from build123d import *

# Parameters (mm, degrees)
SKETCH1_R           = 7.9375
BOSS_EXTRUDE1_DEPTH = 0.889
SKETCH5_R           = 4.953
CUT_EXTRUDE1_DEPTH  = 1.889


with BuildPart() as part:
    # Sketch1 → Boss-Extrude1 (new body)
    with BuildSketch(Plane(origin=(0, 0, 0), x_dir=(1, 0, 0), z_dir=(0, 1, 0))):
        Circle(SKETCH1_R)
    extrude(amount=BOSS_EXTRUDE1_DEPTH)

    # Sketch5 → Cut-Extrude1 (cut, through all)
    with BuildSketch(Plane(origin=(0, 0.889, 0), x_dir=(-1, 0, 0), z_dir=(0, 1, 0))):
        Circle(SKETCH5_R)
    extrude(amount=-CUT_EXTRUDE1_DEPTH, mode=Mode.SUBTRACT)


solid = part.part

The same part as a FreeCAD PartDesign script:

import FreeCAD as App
import Part
import Sketcher

V = App.Vector
Q = App.Units.Quantity

doc = App.newDocument("Part")
params = doc.addObject("Spreadsheet::Sheet", "Params")
for row, (alias, value) in enumerate([
    ("sketch1_diameter", "0.625 in"),
    ("pad1_length", "0.035 in"),
    ("sketch2_diameter", "0.39 in"),
], start=1):
    params.set(f"A{row}", alias)
    params.set(f"B{row}", "=" + value)
    params.setAlias(f"B{row}", alias)

body = doc.addObject("PartDesign::Body", "Body")

sketch1 = body.newObject("Sketcher::SketchObject", "Sketch")
sketch1.AttachmentSupport = (doc.getObject("XZ_Plane"), [""])
sketch1.MapMode = "FlatFace"
sketch1.addGeometry(Part.Circle(V(0, 0, 0), V(0, 0, 1), 7.9375), False)
sketch1.addConstraint(Sketcher.Constraint("Coincident", 0, 3, -1, 1))
sketch1.addConstraint(Sketcher.Constraint("Diameter", 0, Q("0.625 in")))
sketch1.setExpression("Constraints[1]", "Params.sketch1_diameter")
pad1 = body.newObject("PartDesign::Pad", "Pad")
pad1.Profile = sketch1
pad1.setExpression("Length", "Params.pad1_length")
pad1.Reversed = True

sketch2 = body.newObject("Sketcher::SketchObject", "Sketch001")
sketch2.AttachmentSupport = (doc.getObject("XZ_Plane"), [""])
sketch2.MapMode = "FlatFace"
sketch2.AttachmentOffset = App.Placement(V(0, 0, -0.035 * 25.4), App.Rotation())
sketch2.addGeometry(Part.Circle(V(0, 0, 0), V(0, 0, 1), 4.953), False)
sketch2.addConstraint(Sketcher.Constraint("Coincident", 0, 3, -1, 1))
sketch2.addConstraint(Sketcher.Constraint("Diameter", 0, Q("0.39 in")))
sketch2.setExpression("Constraints[1]", "Params.sketch2_diameter")
pocket1 = body.newObject("PartDesign::Pocket", "Pocket")
pocket1.Profile = sketch2
pocket1.Type = "ThroughAll"
pocket1.Reversed = True

doc.recompute()
